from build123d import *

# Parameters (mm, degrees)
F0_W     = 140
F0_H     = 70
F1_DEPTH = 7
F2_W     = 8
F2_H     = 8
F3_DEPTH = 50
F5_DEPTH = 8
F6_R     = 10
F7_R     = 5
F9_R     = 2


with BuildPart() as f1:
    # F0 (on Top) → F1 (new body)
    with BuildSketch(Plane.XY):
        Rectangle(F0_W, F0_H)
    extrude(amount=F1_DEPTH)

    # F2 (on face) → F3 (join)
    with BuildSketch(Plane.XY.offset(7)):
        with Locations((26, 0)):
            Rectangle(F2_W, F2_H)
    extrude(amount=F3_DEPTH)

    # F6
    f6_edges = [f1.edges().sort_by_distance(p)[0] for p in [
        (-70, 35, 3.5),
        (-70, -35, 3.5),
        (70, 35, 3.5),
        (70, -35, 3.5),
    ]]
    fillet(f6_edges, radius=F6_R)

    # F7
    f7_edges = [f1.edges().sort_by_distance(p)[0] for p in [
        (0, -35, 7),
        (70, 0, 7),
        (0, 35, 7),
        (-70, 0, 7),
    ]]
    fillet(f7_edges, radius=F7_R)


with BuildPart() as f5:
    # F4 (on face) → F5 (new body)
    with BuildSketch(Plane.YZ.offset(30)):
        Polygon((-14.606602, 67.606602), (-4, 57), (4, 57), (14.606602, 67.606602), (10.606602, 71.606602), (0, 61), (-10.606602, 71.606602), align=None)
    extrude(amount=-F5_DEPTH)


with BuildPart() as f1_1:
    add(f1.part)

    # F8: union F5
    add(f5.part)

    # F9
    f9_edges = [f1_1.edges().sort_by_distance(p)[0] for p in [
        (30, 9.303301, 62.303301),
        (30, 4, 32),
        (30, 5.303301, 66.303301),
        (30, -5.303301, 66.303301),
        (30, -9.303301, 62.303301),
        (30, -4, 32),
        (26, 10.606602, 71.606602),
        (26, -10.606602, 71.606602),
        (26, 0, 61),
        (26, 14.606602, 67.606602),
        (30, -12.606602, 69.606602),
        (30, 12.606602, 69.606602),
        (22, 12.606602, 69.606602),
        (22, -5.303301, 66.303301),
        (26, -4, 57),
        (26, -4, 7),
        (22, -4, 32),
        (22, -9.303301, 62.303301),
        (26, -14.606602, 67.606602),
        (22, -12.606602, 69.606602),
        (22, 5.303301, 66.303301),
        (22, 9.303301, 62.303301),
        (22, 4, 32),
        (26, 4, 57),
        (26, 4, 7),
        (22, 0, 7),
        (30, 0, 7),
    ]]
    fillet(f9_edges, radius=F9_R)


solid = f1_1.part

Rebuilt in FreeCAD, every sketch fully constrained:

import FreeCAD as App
import Part
import Sketcher
Q = App.Units.Quantity


def edges_at(feature, points):
    """Names of the edges that pass closest to the given points."""
    edges = feature.Shape.Edges
    near = lambda p: min(range(len(edges)), key=lambda i: edges[i].distToShape(Part.Vertex(*p))[0])
    return sorted({f"Edge{near(p) + 1}" for p in points})


def add_polygon(sketch, points):
    """Adds a closed chain of lines whose ends are joined by coincident constraints."""
    first, n = sketch.GeometryCount, len(points)
    for a, b in zip(points, points[1:] + points[:1]):
        sketch.addGeometry(Part.LineSegment(App.Vector(*a, 0), App.Vector(*b, 0)), False)
    for i in range(n):
        sketch.addConstraint(Sketcher.Constraint("Coincident", first + i, 2, first + (i + 1) % n, 1))

doc = App.newDocument("Part")
body = doc.addObject("PartDesign::Body", "Body")

# Sketch on XY plane
sketch1 = body.newObject("Sketcher::SketchObject", "Sketch")
sketch1.AttachmentSupport = (doc.getObject("XY_Plane"), [""])
sketch1.MapMode = "FlatFace"
add_polygon(sketch1, [(-70, 35), (-70, -35), (70, -35), (70, 35)])  # lines 0-3
sketch1.addConstraint([
    Sketcher.Constraint("Vertical", 0),
    Sketcher.Constraint("Horizontal", 1),
    Sketcher.Constraint("Vertical", 2),
    Sketcher.Constraint("Horizontal", 3),
    Sketcher.Constraint("Symmetric", 0, 2, 2, 2, -1, 1),
    Sketcher.Constraint("DistanceX", 1, 1, 1, 2, Q("140 mm")),
    Sketcher.Constraint("DistanceY", 0, 2, 0, 1, Q("70 mm")),
])
pad1 = body.newObject("PartDesign::Pad", "Pad")
pad1.Profile = sketch1
pad1.Length = 7

# Sketch on XY plane
sketch2 = body.newObject("Sketcher::SketchObject", "Sketch001")
sketch2.AttachmentSupport = (doc.getObject("XY_Plane"), [""])
sketch2.MapMode = "FlatFace"
sketch2.AttachmentOffset = App.Placement(App.Vector(0, 0, 7), App.Rotation())
add_polygon(sketch2, [(22, 4), (22, -4), (30, -4), (30, 4)])  # lines 0-3
sketch2.addConstraint([
    Sketcher.Constraint("Vertical", 0),
    Sketcher.Constraint("Horizontal", 1),
    Sketcher.Constraint("Vertical", 2),
    Sketcher.Constraint("Horizontal", 3),
    Sketcher.Constraint("Equal", 3, 0),
    Sketcher.Constraint("DistanceX", 1, 1, 1, 2, Q("8 mm")),
    Sketcher.Constraint("DistanceX", -1, 1, 0, 2, Q("22 mm")),
    Sketcher.Constraint("DistanceY", 0, 2, -1, 1, Q("4 mm")),
])
pad2 = body.newObject("PartDesign::Pad", "Pad001")
pad2.Profile = sketch2
pad2.Length = 50
doc.recompute()

fillet = body.newObject("PartDesign::Fillet", "Fillet")
fillet.Base = (pad2, edges_at(pad2, [
    (-70, 35, 3.5),
    (-70, -35, 3.5),
    (70, 35, 3.5),
    (70, -35, 3.5),
]))
fillet.Radius = 10
doc.recompute()

fillet2 = body.newObject("PartDesign::Fillet", "Fillet001")
fillet2.Base = (fillet, edges_at(fillet, [
    (0, -35, 7),
    (70, 0, 7),
    (0, 35, 7),
    (-70, 0, 7),
]))
fillet2.Radius = 5
body2 = doc.addObject("PartDesign::Body", "Body001")

# Sketch on YZ plane
sketch3 = body2.newObject("Sketcher::SketchObject", "Sketch002")
sketch3.AttachmentSupport = (doc.getObject("YZ_Plane001"), [""])
sketch3.MapMode = "FlatFace"
sketch3.AttachmentOffset = App.Placement(App.Vector(0, 0, 30), App.Rotation())
add_polygon(sketch3, [(-14.606602, 67.606602), (-4, 57), (4, 57), (14.606602, 67.606602), (10.606602, 71.606602), (0, 61), (-10.606602, 71.606602)])  # lines 0-6
sketch3.addConstraint([
    Sketcher.Constraint("Horizontal", 1),
    Sketcher.Constraint("Symmetric", 3, 2, 5, 2, -2),
    Sketcher.Constraint("Symmetric", 2, 2, 6, 2, -2),
    Sketcher.Constraint("PointOnObject", 4, 2, -2),
    Sketcher.Constraint("Perpendicular", 0, 2),
    Sketcher.Constraint("Perpendicular", 2, 3),
    Sketcher.Constraint("Perpendicular", 3, 4),
    Sketcher.Constraint("Perpendicular", 4, 5),
    Sketcher.Constraint("Equal", 2, 4),
    Sketcher.Constraint("DistanceX", 1, 1, 1, 2, Q("8 mm")),
    Sketcher.Constraint("Distance", 0, Q("15 mm")),
    Sketcher.Constraint("DistanceY", -1, 1, 0, 2, Q("57 mm")),
])
pad3 = body2.newObject("PartDesign::Pad", "Pad002")
pad3.Profile = sketch3
pad3.Length = 8
pad3.Reversed = True
doc.recompute()

boolean = body.newObject("PartDesign::Boolean", "Boolean")
boolean.Type = "Fuse"
boolean.addObjects([body2])
doc.recompute()

fillet3 = body.newObject("PartDesign::Fillet", "Fillet002")
fillet3.Base = (boolean, edges_at(boolean, [
    (30, 9.303, 62.303),
    (30, 4, 32),
    (30, 5.303, 66.303),
    (30, -5.303, 66.303),
    (30, -9.303, 62.303),
    (30, -4, 32),
    (26, 10.607, 71.607),
    (26, -10.607, 71.607),
    (26, 0, 61),
    (26, 14.607, 67.607),
    (30, -12.607, 69.607),
    (30, 12.607, 69.607),
    (22, 12.607, 69.607),
    (22, -5.303, 66.303),
    (26, -4, 57),
    (26, -4, 7),
    (22, -4, 32),
    (22, -9.303, 62.303),
    (26, -14.607, 67.607),
    (22, -12.607, 69.607),
    (22, 5.303, 66.303),
    (22, 9.303, 62.303),
    (22, 4, 32),
    (26, 4, 57),
    (26, 4, 7),
    (22, 0, 7),
    (30, 0, 7),
]))
fillet3.Radius = 2

doc.recompute()
